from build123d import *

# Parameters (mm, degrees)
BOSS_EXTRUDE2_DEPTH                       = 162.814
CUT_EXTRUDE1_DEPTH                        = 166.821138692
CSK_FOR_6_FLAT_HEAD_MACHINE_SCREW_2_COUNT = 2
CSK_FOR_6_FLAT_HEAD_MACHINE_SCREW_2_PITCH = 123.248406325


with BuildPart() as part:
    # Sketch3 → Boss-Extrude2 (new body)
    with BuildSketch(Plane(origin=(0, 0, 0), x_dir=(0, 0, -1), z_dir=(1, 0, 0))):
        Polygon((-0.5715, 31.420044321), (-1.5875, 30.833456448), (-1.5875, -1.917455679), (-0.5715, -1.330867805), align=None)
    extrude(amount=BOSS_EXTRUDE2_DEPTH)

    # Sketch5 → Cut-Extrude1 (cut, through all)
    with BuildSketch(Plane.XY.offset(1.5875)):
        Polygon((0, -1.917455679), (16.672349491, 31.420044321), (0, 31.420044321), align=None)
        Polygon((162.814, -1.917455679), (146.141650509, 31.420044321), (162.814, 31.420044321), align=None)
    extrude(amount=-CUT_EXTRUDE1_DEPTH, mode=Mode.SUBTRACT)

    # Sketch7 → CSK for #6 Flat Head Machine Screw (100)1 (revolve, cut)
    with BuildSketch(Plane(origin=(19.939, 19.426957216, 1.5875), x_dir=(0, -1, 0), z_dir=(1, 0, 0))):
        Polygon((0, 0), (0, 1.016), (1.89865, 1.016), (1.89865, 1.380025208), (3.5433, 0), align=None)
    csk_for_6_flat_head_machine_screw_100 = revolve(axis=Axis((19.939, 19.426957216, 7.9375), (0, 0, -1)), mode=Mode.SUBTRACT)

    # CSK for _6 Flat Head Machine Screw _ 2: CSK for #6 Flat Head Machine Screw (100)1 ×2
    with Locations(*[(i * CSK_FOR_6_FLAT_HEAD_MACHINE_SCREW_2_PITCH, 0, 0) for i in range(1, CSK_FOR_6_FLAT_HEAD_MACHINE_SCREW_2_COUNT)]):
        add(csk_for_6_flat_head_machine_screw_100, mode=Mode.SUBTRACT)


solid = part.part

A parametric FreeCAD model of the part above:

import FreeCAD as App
import Part
import Sketcher

V = App.Vector
Q = App.Units.Quantity

doc = App.newDocument("Part")
body = doc.addObject("PartDesign::Body", "Body")

# Sketch on YZ plane
sketch1 = body.newObject("Sketcher::SketchObject", "Sketch")
sketch1.AttachmentSupport = (doc.getObject("YZ_Plane"), [""])
sketch1.MapMode = "FlatFace"
sketch1.addGeometry(Part.LineSegment(V(31.4, 0.6, 0), V(30.8, 1.6, 0)), False)
sketch1.addGeometry(Part.LineSegment(V(30.8, 1.6, 0), V(-1.9, 1.6, 0)), False)
sketch1.addGeometry(Part.LineSegment(V(-1.9, 1.6, 0), V(-1.3, 0.6, 0)), False)
sketch1.addGeometry(Part.LineSegment(V(-1.3, 0.6, 0), V(31.4, 0.6, 0)), False)
sketch1.addConstraint(Sketcher.Constraint("Coincident", 0, 2, 1, 1))
sketch1.addConstraint(Sketcher.Constraint("Coincident", 1, 2, 2, 1))
sketch1.addConstraint(Sketcher.Constraint("Coincident", 2, 2, 3, 1))
sketch1.addConstraint(Sketcher.Constraint("Coincident", 3, 2, 0, 1))
sketch1.addConstraint(Sketcher.Constraint("Horizontal", 1))
sketch1.addConstraint(Sketcher.Constraint("Horizontal", 3))
sketch1.addConstraint(Sketcher.Constraint("Parallel", 0, 2))
sketch1.addConstraint(Sketcher.Constraint("Angle", 0, Q("120 deg")))
sketch1.addConstraint(Sketcher.Constraint("DistanceY", 2, 2, 1, 2, Q("0.04 in")))
sketch1.addConstraint(Sketcher.Constraint("DistanceY", -1, 1, 0, 2, Q("0.0625 in")))
sketch1.addConstraint(Sketcher.Constraint("DistanceX", 1, 2, 3, 2, Q("1.3125 in")))
sketch1.addConstraint(Sketcher.Constraint("DistanceX", -1, 1, 0, 2, Q("30.833456 mm")))
pad1 = body.newObject("PartDesign::Pad", "Pad")
pad1.Profile = sketch1
pad1.Length = Q("6.41 in")

# Sketch on XY plane
sketch2 = body.newObject("Sketcher::SketchObject", "Sketch001")
sketch2.AttachmentSupport = (doc.getObject("XY_Plane"), [""])
sketch2.MapMode = "FlatFace"
sketch2.AttachmentOffset = App.Placement(V(0, 0, 0.0625 * 25.4), App.Rotation())
sketch2.addGeometry(Part.LineSegment(V(0, -2, 0), V(17, 31, 0)), False)
sketch2.addGeometry(Part.LineSegment(V(17, 31, 0), V(0, 31, 0)), False)
sketch2.addGeometry(Part.LineSegment(V(0, 31, 0), V(0, -2, 0)), False)
sketch2.addGeometry(Part.LineSegment(V(146, 31, 0), V(163, -2, 0)), False)
sketch2.addGeometry(Part.LineSegment(V(163, -2, 0), V(163, 31, 0)), False)
sketch2.addGeometry(Part.LineSegment(V(163, 31, 0), V(146, 31, 0)), False)
sketch2.addConstraint(Sketcher.Constraint("Coincident", 0, 2, 1, 1))
sketch2.addConstraint(Sketcher.Constraint("Coincident", 1, 2, 2, 1))
sketch2.addConstraint(Sketcher.Constraint("Coincident", 2, 2, 0, 1))
sketch2.addConstraint(Sketcher.Constraint("Coincident", 3, 2, 4, 1))
sketch2.addConstraint(Sketcher.Constraint("Coincident", 4, 2, 5, 1))
sketch2.addConstraint(Sketcher.Constraint("Coincident", 5, 2, 3, 1))
sketch2.addConstraint(Sketcher.Constraint("Horizontal", 1))
sketch2.addConstraint(Sketcher.Constraint("Vertical", 2))
sketch2.addConstraint(Sketcher.Constraint("Vertical", 4))
sketch2.addConstraint(Sketcher.Constraint("Horizontal", 5))
sketch2.addConstraint(Sketcher.Constraint("PointOnObject", 1, 2, -2))
sketch2.addConstraint(Sketcher.Constraint("Horizontal", 2, 2, 3, 2))
sketch2.addConstraint(Sketcher.Constraint("Horizontal", 1, 2, 4, 2))
sketch2.addConstraint(Sketcher.Constraint("Equal", 1, 5))
sketch2.addConstraint(Sketcher.Constraint("DistanceY", 2, 2, 2, 1, Q("1.3125 in")))
sketch2.addConstraint(Sketcher.Constraint("DistanceX", -1, 1, 3, 2, Q("6.41 in")))
sketch2.addConstraint(Sketcher.Constraint("Angle", 0, Q("63.43 deg")))
sketch2.addConstraint(Sketcher.Constraint("DistanceY", -1, 1, 0, 2, Q("31.420044 mm")))
pocket1 = body.newObject("PartDesign::Pocket", "Pocket")
pocket1.Profile = sketch2
pocket1.Type = "ThroughAll"

# Sketch on YZ plane
sketch3 = body.newObject("Sketcher::SketchObject", "Sketch002")
sketch3.AttachmentSupport = (doc.getObject("YZ_Plane"), [""])
sketch3.MapMode = "FlatFace"
sketch3.AttachmentOffset = App.Placement(V(0, 0, 0.785 * 25.4), App.Rotation())
sketch3.addGeometry(Part.LineSegment(V(19.43, 0.57, 0), V(19.43, 1.59, 0)), False)
sketch3.addGeometry(Part.LineSegment(V(19.43, 1.59, 0), V(15.88, 1.59, 0)), False)
sketch3.addGeometry(Part.LineSegment(V(15.88, 1.59, 0), V(17.53, 0.21, 0)), False)
sketch3.addGeometry(Part.LineSegment(V(17.53, 0.21, 0), V(17.53, 0.57, 0)), False)
sketch3.addGeometry(Part.LineSegment(V(17.53, 0.57, 0), V(19.43, 0.57, 0)), False)
sketch3.addGeometry(Part.LineSegment(V(19.43, 1.59, 0), V(19.43, 0.21, 0)), True)  # axis
sketch3.addConstraint(Sketcher.Constraint("Coincident", 0, 2, 1, 1))
sketch3.addConstraint(Sketcher.Constraint("Coincident", 1, 2, 2, 1))
sketch3.addConstraint(Sketcher.Constraint("Coincident", 2, 2, 3, 1))
sketch3.addConstraint(Sketcher.Constraint("Coincident", 3, 2, 4, 1))
sketch3.addConstraint(Sketcher.Constraint("Coincident", 4, 2, 0, 1))
sketch3.addConstraint(Sketcher.Constraint("Vertical", 0))
sketch3.addConstraint(Sketcher.Constraint("Horizontal", 1))
sketch3.addConstraint(Sketcher.Constraint("Vertical", 3))
sketch3.addConstraint(Sketcher.Constraint("Horizontal", 4))
sketch3.addConstraint(Sketcher.Constraint("Vertical", 5))
sketch3.addConstraint(Sketcher.Constraint("Coincident", 5, 1, 0, 2))
sketch3.addConstraint(Sketcher.Constraint("Horizontal", 2, 2, 5, 2))
sketch3.addConstraint(Sketcher.Constraint("Angle", 2, Q("-40 deg")))
sketch3.addConstraint(Sketcher.Constraint("DistanceY", 0, 1, 0, 2, Q("0.04 in")))
sketch3.addConstraint(Sketcher.Constraint("DistanceX", 1, 2, 1, 1, Q("0.1395 in")))
sketch3.addConstraint(Sketcher.Constraint("DistanceY", -1, 1, 0, 2, Q("0.0625 in")))
sketch3.addConstraint(Sketcher.Constraint("DistanceX", 4, 1, 4, 2, Q("1.89865 mm")))
sketch3.addConstraint(Sketcher.Constraint("DistanceX", -1, 1, 0, 2, Q("19.426957 mm")))
groove = body.newObject("PartDesign::Groove", "Groove")
groove.Profile = sketch3
groove.ReferenceAxis = (sketch3, ["Axis0"])
groove.Angle = 360
doc.recompute()

linearpattern = body.newObject("PartDesign::LinearPattern", "LinearPattern")
linearpattern.Originals = [groove]
linearpattern.Direction = (doc.getObject("X_Axis"), [""])
linearpattern.Mode = "offset"
linearpattern.Offset = 123.248406
linearpattern.Occurrences = 2
body.Tip = linearpattern

doc.recompute()
